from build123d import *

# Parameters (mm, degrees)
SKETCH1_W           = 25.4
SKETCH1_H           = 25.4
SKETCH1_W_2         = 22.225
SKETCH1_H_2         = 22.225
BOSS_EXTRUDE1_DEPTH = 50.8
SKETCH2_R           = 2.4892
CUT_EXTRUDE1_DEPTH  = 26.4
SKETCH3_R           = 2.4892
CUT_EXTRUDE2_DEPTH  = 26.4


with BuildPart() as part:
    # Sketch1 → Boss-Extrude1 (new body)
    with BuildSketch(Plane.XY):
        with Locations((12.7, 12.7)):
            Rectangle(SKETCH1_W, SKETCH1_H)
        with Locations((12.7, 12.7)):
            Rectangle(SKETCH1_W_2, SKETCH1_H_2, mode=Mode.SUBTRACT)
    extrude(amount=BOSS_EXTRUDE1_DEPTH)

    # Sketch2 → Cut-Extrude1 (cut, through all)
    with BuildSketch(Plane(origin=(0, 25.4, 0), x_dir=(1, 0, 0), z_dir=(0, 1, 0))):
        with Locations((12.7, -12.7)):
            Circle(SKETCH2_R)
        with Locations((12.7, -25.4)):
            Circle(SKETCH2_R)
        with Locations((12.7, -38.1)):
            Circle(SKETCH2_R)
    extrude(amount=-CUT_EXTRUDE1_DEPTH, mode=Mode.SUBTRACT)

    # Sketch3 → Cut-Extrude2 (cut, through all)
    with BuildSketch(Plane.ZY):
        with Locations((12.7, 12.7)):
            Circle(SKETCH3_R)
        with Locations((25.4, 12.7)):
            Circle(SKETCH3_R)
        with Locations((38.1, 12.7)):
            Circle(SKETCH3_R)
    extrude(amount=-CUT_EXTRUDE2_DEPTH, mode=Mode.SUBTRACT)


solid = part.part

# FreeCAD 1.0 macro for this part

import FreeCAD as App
import Part
import Sketcher
Q = App.Units.Quantity


def add_polygon(sketch, points):
    """Adds a closed chain of lines whose ends are joined by coincident constraints."""
    first, n = sketch.GeometryCount, len(points)
    for a, b in zip(points, points[1:] + points[:1]):
        sketch.addGeometry(Part.LineSegment(App.Vector(*a, 0), App.Vector(*b, 0)), False)
    for i in range(n):
        sketch.addConstraint(Sketcher.Constraint("Coincident", first + i, 2, first + (i + 1) % n, 1))

doc = App.newDocument("Part")
params = doc.addObject("Spreadsheet::Sheet", "Params")
for row, (alias, value) in enumerate([
    ("sketch1_width", "1 in"),
    ("sketch1_width2", "0.875 in"),
    ("pad1_length", "2 in"),
    ("sketch2_diameter", "0.196 in"),
    ("sketch3_diameter", "0.196 in"),
], start=1):
    params.set(f"A{row}", alias)
    params.set(f"B{row}", "=" + value)
    params.setAlias(f"B{row}", alias)

body = doc.addObject("PartDesign::Body", "Body")

# Sketch on XY plane
sketch1 = body.newObject("Sketcher::SketchObject", "Sketch")
sketch1.AttachmentSupport = (doc.getObject("XY_Plane"), [""])
sketch1.MapMode = "FlatFace"
add_polygon(sketch1, [(0, 25), (0, 0), (25, 0), (25, 25)])  # lines 0-3
add_polygon(sketch1, [(24, 2), (2, 2), (2, 24), (24, 24)])  # lines 4-7
sketch1.addConstraint([
    Sketcher.Constraint("Vertical", 0),
    Sketcher.Constraint("Horizontal", 1),
    Sketcher.Constraint("Vertical", 2),
    Sketcher.Constraint("Horizontal", 3),
    Sketcher.Constraint("Horizontal", 4),
    Sketcher.Constraint("Vertical", 5),
    Sketcher.Constraint("Horizontal", 6),
    Sketcher.Constraint("Vertical", 7),
    Sketcher.Constraint("Coincident", 0, 2, -1, 1),
    Sketcher.Constraint("Equal", 3, 0),
    Sketcher.Constraint("Equal", 6, 5),
    Sketcher.Constraint("DistanceX", 1, 1, 1, 2, Q("1 in")),
    Sketcher.Constraint("DistanceX", 4, 2, 4, 1, Q("0.875 in")),
    Sketcher.Constraint("DistanceX", -1, 1, 4, 2, Q("0.0625 in")),
    Sketcher.Constraint("DistanceY", -1, 1, 4, 2, Q("0.0625 in")),
])
sketch1.setExpression("Constraints[19]", "Params.sketch1_width")
sketch1.setExpression("Constraints[20]", "Params.sketch1_width2")
pad1 = body.newObject("PartDesign::Pad", "Pad")
pad1.Profile = sketch1
pad1.setExpression("Length", "Params.pad1_length")

# Sketch on XZ plane
sketch2 = body.newObject("Sketcher::SketchObject", "Sketch001")
sketch2.AttachmentSupport = (doc.getObject("XZ_Plane"), [""])
sketch2.MapMode = "FlatFace"
sketch2.AttachmentOffset = App.Placement(App.Vector(0, 0, -1 * 25.4), App.Rotation())
sketch2.addGeometry([
    Part.Circle(App.Vector(12.7, 12.7, 0), App.Vector(0, 0, 1), 2.5),
    Part.Circle(App.Vector(12.7, 25.4, 0), App.Vector(0, 0, 1), 2.5),
    Part.Circle(App.Vector(12.7, 38.1, 0), App.Vector(0, 0, 1), 2.5),
], False)
sketch2.addConstraint([
    Sketcher.Constraint("Equal", 0, 1),
    Sketcher.Constraint("Equal", 1, 2),
    Sketcher.Constraint("Vertical", 0, 3, 1, 3),
    Sketcher.Constraint("Vertical", 1, 3, 2, 3),
    Sketcher.Constraint("Diameter", 0, Q("0.196 in")),
    Sketcher.Constraint("DistanceY", -1, 1, 1, 3, Q("1 in")),
    Sketcher.Constraint("DistanceY", 0, 3, 2, 3, Q("1 in")),
    Sketcher.Constraint("DistanceX", -1, 1, 0, 3, Q("0.5 in")),
    Sketcher.Constraint("DistanceY", -1, 1, 0, 3, Q("0.5 in")),
])
sketch2.setExpression("Constraints[4]", "Params.sketch2_diameter")
pocket1 = body.newObject("PartDesign::Pocket", "Pocket")
pocket1.Profile = sketch2
pocket1.Type = "ThroughAll"
pocket1.Reversed = True

# Sketch on YZ plane
sketch3 = body.newObject("Sketcher::SketchObject", "Sketch002")
sketch3.AttachmentSupport = (doc.getObject("YZ_Plane"), [""])
sketch3.MapMode = "FlatFace"
sketch3.addGeometry([
    Part.Circle(App.Vector(12.7, 12.7, 0), App.Vector(0, 0, 1), 2.5),
    Part.Circle(App.Vector(12.7, 25.4, 0), App.Vector(0, 0, 1), 2.5),
    Part.Circle(App.Vector(12.7, 38.1, 0), App.Vector(0, 0, 1), 2.5),
], False)
sketch3.addConstraint([
    Sketcher.Constraint("Equal", 0, 1),
    Sketcher.Constraint("Equal", 1, 2),
    Sketcher.Constraint("Vertical", 0, 3, 1, 3),
    Sketcher.Constraint("Vertical", 1, 3, 2, 3),
    Sketcher.Constraint("Diameter", 0, Q("0.196 in")),
    Sketcher.Constraint("DistanceY", -1, 1, 1, 3, Q("1 in")),
    Sketcher.Constraint("DistanceY", 0, 3, 2, 3, Q("1 in")),
    Sketcher.Constraint("DistanceX", -1, 1, 0, 3, Q("0.5 in")),
    Sketcher.Constraint("DistanceY", -1, 1, 0, 3, Q("0.5 in")),
])
sketch3.setExpression("Constraints[4]", "Params.sketch3_diameter")
pocket2 = body.newObject("PartDesign::Pocket", "Pocket001")
pocket2.Profile = sketch3
pocket2.Type = "ThroughAll"
pocket2.Reversed = True

doc.recompute()
